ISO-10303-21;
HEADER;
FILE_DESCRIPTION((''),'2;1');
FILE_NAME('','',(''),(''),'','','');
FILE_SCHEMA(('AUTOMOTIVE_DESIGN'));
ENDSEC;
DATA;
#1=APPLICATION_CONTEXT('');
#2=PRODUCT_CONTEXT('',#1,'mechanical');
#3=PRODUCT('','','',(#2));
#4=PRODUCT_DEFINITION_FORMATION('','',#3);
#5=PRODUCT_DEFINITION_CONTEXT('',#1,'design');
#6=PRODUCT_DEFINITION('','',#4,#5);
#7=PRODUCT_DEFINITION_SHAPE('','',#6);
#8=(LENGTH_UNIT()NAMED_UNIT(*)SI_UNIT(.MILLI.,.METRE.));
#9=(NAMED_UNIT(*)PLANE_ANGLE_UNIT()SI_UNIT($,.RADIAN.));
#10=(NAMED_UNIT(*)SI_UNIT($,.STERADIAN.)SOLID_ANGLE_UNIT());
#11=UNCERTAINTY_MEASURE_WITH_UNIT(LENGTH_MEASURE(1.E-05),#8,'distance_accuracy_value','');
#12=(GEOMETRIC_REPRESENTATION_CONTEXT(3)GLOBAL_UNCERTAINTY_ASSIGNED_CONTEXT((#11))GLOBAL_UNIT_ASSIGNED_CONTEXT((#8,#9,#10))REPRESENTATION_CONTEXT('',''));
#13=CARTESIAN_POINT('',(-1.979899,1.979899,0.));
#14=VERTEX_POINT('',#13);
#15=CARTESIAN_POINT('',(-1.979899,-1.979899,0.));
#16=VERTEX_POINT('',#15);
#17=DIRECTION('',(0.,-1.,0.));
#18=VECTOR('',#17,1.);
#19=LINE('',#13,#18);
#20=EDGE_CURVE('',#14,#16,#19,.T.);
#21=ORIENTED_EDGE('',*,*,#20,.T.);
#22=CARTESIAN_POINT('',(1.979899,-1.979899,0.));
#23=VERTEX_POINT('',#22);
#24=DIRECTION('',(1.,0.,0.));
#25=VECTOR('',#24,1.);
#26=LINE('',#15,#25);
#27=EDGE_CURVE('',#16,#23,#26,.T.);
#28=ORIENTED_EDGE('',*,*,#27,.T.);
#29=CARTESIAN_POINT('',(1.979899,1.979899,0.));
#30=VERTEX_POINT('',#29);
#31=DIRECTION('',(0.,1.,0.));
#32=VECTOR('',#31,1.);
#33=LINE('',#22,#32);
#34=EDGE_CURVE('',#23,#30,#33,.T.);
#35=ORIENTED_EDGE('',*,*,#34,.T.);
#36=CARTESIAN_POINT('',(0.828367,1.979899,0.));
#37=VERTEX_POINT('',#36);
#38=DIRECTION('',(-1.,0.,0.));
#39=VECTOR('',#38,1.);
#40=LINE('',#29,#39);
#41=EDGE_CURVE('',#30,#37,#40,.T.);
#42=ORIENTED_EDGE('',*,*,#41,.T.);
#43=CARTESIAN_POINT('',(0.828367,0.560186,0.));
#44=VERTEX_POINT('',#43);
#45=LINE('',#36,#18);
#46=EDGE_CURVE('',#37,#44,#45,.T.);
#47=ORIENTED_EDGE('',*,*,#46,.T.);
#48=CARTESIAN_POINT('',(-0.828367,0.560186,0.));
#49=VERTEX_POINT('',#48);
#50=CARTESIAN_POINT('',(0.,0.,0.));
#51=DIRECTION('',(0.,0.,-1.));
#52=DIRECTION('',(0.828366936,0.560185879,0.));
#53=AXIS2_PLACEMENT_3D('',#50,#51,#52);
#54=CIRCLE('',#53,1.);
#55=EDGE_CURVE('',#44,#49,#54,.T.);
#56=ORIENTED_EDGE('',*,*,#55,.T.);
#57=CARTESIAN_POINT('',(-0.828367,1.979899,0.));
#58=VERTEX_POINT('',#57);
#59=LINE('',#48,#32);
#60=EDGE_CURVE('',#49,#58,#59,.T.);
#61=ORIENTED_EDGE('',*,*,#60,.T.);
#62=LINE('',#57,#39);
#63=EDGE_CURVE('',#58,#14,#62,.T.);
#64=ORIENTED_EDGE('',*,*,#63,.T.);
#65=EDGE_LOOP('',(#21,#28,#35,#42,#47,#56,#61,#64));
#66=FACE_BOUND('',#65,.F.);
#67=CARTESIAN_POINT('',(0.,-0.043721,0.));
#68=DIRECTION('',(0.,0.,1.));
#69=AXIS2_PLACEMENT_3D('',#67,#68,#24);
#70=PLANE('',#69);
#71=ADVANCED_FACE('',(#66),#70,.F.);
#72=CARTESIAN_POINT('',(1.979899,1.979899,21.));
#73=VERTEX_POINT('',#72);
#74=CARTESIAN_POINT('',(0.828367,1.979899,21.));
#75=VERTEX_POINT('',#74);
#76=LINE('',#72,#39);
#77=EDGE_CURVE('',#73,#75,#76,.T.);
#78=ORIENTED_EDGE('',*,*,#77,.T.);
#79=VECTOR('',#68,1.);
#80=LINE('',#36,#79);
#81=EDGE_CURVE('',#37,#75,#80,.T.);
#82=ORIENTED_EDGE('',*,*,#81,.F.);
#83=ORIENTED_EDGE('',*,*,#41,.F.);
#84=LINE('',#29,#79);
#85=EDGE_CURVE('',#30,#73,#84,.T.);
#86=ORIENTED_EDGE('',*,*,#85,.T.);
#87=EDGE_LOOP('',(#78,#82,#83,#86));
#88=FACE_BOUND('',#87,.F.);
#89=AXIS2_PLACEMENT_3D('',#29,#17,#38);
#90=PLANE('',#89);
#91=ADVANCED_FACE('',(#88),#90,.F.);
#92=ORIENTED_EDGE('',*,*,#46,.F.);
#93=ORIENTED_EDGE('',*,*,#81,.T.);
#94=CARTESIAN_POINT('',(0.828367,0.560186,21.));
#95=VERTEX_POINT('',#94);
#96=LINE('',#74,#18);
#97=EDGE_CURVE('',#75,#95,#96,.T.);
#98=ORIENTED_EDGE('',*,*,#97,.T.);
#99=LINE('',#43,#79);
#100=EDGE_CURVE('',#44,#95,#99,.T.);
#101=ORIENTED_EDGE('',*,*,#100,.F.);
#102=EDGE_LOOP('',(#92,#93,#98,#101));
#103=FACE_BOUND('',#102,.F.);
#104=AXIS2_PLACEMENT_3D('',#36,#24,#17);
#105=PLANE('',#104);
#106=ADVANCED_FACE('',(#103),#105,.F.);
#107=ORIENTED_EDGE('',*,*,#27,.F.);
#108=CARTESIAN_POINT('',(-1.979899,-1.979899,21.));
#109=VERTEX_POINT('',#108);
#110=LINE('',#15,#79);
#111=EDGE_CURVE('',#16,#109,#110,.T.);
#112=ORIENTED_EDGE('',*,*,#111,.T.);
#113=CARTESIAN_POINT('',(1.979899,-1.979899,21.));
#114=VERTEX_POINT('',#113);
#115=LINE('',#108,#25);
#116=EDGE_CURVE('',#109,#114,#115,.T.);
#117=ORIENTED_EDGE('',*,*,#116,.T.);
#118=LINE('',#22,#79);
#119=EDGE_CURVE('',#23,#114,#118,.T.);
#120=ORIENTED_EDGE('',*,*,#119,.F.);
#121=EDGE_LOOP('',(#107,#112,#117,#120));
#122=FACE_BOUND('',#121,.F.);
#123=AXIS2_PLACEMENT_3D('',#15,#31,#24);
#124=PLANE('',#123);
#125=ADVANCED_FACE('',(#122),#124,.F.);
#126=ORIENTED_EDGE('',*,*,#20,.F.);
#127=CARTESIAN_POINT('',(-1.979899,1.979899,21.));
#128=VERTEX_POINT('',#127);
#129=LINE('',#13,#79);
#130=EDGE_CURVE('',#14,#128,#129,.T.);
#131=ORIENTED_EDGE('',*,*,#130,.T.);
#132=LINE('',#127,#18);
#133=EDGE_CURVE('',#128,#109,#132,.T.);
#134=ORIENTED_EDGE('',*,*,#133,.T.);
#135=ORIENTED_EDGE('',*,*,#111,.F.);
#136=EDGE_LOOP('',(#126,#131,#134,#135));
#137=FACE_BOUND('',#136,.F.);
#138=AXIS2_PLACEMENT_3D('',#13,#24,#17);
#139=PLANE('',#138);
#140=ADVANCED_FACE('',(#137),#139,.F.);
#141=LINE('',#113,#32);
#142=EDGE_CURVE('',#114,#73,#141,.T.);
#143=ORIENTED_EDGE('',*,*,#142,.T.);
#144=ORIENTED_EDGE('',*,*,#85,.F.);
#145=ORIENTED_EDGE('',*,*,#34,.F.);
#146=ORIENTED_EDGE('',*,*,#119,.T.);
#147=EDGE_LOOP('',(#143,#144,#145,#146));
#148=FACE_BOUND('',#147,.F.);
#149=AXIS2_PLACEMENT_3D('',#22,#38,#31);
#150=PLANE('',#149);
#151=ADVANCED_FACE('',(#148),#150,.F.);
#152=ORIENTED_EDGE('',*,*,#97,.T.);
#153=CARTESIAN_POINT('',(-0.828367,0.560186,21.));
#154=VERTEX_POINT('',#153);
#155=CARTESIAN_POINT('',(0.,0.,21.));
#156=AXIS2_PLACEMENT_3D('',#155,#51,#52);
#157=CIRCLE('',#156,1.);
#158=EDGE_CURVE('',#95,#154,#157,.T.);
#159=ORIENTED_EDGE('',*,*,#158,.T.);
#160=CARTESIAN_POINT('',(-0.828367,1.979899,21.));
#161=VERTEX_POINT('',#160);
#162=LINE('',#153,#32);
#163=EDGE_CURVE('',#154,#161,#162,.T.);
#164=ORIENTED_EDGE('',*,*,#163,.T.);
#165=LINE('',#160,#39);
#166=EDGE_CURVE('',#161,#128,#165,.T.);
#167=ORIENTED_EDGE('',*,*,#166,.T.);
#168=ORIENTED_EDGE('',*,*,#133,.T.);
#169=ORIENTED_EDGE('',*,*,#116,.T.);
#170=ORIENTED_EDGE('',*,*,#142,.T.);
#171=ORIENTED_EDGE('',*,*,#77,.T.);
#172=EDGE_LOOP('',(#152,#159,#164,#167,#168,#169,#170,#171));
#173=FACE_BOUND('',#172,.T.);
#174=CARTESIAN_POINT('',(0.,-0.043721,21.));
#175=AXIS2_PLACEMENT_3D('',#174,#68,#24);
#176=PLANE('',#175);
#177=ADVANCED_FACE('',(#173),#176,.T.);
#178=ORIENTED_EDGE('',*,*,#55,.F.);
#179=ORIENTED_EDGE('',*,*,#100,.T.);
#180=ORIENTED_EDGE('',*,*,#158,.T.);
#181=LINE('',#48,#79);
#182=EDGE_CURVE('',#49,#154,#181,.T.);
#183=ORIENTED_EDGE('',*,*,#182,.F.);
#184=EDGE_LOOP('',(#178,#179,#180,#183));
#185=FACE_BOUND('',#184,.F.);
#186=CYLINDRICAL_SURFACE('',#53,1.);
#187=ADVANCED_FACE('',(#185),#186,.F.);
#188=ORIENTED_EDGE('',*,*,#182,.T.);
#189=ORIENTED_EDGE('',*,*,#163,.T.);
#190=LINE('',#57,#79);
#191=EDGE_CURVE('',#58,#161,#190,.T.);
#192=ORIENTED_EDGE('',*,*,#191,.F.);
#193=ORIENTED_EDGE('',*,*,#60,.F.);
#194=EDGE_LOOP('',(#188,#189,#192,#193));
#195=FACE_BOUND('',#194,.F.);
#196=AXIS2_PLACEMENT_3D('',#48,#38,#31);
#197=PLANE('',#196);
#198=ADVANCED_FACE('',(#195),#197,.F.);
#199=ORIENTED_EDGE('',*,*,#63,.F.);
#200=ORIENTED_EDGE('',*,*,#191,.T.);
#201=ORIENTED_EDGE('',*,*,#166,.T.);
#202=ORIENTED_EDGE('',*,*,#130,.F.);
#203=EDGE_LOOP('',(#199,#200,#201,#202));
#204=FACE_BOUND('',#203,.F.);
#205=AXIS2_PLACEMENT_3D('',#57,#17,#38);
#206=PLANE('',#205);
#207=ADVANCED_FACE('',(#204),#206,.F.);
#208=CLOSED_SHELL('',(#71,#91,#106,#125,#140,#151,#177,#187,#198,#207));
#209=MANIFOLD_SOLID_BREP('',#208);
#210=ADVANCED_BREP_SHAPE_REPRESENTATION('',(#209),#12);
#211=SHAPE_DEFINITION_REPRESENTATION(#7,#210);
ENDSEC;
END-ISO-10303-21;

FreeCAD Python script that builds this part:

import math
import FreeCAD as App
import Part
import Sketcher
from FreeCAD import Vector
Q = App.Units.Quantity

doc = App.newDocument("Part")
body = doc.addObject("PartDesign::Body", "Body")

sketch1 = body.newObject("Sketcher::SketchObject", "Sketch")
sketch1.AttachmentSupport = (doc.getObject("XY_Plane"), [""])
sketch1.MapMode = "FlatFace"
sketch1.addGeometry(Part.LineSegment(Vector(2, -2, 0), Vector(2, 2, 0)), False)
sketch1.addGeometry(Part.LineSegment(Vector(2, 2, 0), Vector(0.8, 2, 0)), False)
sketch1.addGeometry(Part.LineSegment(Vector(0.8, 2, 0), Vector(0.8, 0.6, 0)), False)
sketch1.addGeometry(Part.ArcOfCircle(Part.Circle(Vector(0, 0, 0), Vector(0, 0, 1), 1), math.radians(146), math.radians(394)), False)
sketch1.addGeometry(Part.LineSegment(Vector(-0.8, 0.6, 0), Vector(-0.8, 2, 0)), False)
sketch1.addGeometry(Part.LineSegment(Vector(-0.8, 2, 0), Vector(-2, 2, 0)), False)
sketch1.addGeometry(Part.LineSegment(Vector(-2, 2, 0), Vector(-2, -2, 0)), False)
sketch1.addGeometry(Part.LineSegment(Vector(-2, -2, 0), Vector(2, -2, 0)), False)
sketch1.addConstraint(Sketcher.Constraint("Coincident", 0, 2, 1, 1))
sketch1.addConstraint(Sketcher.Constraint("Coincident", 1, 2, 2, 1))
sketch1.addConstraint(Sketcher.Constraint("Coincident", 2, 2, 3, 2))
sketch1.addConstraint(Sketcher.Constraint("Coincident", 3, 1, 4, 1))
sketch1.addConstraint(Sketcher.Constraint("Coincident", 4, 2, 5, 1))
sketch1.addConstraint(Sketcher.Constraint("Coincident", 5, 2, 6, 1))
sketch1.addConstraint(Sketcher.Constraint("Coincident", 6, 2, 7, 1))
sketch1.addConstraint(Sketcher.Constraint("Coincident", 7, 2, 0, 1))
sketch1.addConstraint(Sketcher.Constraint("Vertical", 0))
sketch1.addConstraint(Sketcher.Constraint("Horizontal", 1))
sketch1.addConstraint(Sketcher.Constraint("Vertical", 2))
sketch1.addConstraint(Sketcher.Constraint("Vertical", 4))
sketch1.addConstraint(Sketcher.Constraint("Horizontal", 5))
sketch1.addConstraint(Sketcher.Constraint("Vertical", 6))
sketch1.addConstraint(Sketcher.Constraint("Horizontal", 7))
sketch1.addConstraint(Sketcher.Constraint("Coincident", 3, 3, -1, 1))
sketch1.addConstraint(Sketcher.Constraint("Symmetric", 0, 2, 6, 2, -1, 1))
sketch1.addConstraint(Sketcher.Constraint("Symmetric", 1, 2, 4, 2, -2))
sketch1.addConstraint(Sketcher.Constraint("Equal", 7, 0))
sketch1.addConstraint(Sketcher.Constraint("Radius", 3, Q("1 mm")))
sketch1.addConstraint(Sketcher.Constraint("DistanceX", 7, 1, 7, 2, Q("3.959798 mm")))
sketch1.addConstraint(Sketcher.Constraint("DistanceX", 1, 2, 1, 1, Q("1.151532 mm")))
pad1 = body.newObject("PartDesign::Pad", "Pad")
pad1.Profile = sketch1
pad1.Length = 21

doc.recompute()
